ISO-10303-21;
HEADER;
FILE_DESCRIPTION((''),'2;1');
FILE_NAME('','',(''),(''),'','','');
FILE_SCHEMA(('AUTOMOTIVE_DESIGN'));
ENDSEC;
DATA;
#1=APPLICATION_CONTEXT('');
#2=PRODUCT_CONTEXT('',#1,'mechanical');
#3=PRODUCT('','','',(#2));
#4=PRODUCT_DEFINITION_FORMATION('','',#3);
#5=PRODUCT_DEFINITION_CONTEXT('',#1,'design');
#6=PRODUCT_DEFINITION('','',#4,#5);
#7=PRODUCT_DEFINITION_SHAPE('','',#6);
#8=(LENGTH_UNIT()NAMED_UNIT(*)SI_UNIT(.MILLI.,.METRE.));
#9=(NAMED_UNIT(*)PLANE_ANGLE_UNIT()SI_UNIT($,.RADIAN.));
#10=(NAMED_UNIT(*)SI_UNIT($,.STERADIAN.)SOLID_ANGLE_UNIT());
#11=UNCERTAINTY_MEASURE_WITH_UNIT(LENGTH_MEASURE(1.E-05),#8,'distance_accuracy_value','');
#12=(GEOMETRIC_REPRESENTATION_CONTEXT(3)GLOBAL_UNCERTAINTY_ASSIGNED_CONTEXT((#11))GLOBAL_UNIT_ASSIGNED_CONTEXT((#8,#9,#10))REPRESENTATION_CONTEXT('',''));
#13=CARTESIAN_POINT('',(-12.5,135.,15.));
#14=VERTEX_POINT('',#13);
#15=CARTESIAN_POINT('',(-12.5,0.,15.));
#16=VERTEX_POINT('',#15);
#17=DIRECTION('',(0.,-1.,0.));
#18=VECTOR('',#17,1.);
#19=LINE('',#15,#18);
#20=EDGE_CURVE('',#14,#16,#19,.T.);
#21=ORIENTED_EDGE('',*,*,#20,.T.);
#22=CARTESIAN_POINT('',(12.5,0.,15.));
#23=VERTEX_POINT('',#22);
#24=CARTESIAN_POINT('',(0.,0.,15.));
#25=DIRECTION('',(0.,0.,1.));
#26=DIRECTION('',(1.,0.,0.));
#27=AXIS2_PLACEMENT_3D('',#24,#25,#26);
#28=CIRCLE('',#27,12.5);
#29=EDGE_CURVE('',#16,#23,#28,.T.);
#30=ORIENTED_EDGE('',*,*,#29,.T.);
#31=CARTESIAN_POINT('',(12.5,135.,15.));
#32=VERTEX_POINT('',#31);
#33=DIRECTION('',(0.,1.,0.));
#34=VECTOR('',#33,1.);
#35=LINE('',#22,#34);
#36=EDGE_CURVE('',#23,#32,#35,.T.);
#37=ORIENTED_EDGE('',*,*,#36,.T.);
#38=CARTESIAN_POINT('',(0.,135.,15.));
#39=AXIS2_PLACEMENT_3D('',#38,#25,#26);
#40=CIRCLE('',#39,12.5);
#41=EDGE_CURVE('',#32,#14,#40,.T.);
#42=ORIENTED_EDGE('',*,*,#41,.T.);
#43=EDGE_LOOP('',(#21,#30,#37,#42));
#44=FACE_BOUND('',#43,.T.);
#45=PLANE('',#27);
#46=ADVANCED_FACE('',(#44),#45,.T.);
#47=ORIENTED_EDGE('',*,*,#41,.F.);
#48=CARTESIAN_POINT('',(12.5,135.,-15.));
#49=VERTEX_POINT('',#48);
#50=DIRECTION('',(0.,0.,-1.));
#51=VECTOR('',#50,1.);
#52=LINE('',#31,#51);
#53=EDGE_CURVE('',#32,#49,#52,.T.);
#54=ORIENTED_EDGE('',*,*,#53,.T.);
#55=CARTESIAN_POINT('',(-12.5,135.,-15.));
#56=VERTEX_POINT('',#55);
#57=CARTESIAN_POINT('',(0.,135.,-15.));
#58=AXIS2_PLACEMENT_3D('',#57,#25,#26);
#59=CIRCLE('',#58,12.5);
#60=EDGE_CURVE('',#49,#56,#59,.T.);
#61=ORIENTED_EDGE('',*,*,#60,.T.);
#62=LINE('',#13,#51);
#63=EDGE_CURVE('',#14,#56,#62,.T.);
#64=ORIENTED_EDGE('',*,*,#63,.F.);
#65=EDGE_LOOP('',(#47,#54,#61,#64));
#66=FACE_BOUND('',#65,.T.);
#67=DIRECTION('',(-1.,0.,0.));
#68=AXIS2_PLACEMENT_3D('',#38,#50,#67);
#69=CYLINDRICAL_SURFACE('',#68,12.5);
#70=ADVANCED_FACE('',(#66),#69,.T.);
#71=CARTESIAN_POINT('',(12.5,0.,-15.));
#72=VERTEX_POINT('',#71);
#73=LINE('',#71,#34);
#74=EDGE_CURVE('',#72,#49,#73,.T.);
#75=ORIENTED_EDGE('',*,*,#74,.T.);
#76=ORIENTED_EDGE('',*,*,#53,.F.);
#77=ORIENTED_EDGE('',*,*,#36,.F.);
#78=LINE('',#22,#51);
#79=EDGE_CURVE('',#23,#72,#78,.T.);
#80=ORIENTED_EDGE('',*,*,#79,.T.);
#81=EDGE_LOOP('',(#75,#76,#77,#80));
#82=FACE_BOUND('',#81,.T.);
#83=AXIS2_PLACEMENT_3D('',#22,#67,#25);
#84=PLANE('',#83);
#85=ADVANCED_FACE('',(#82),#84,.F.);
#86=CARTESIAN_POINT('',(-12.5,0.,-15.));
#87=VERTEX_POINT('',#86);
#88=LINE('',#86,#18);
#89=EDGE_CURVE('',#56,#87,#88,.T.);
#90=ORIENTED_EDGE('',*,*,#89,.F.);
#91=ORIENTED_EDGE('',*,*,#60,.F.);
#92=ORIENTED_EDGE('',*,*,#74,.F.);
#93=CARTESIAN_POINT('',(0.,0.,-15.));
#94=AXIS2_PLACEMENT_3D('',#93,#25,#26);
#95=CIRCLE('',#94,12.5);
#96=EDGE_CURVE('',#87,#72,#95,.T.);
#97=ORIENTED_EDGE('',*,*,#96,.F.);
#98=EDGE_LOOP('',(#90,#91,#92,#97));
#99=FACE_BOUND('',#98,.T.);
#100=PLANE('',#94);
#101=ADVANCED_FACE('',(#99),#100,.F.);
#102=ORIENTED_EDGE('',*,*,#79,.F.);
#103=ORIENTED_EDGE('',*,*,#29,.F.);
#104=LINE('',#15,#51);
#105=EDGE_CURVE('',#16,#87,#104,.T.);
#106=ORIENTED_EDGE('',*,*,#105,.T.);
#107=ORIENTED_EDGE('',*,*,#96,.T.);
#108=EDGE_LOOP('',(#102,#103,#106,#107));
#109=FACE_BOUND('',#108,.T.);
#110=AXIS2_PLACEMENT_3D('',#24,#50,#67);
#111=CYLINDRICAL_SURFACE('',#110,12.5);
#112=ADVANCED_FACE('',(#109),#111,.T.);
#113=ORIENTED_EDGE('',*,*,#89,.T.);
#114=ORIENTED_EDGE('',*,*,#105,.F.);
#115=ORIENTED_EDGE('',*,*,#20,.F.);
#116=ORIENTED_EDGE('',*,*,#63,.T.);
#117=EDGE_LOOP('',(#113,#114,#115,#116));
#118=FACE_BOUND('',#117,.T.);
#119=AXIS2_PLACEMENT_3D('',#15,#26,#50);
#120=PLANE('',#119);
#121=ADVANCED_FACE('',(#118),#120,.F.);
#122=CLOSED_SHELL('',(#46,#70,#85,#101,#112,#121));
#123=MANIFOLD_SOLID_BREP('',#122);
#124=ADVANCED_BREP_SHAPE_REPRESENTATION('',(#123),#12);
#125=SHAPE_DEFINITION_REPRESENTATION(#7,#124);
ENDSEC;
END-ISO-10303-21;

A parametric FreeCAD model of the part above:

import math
import FreeCAD as App
import Part
import Sketcher

V = App.Vector
Q = App.Units.Quantity

doc = App.newDocument("Part")
params = doc.addObject("Spreadsheet::Sheet", "Params")
for row, (alias, value) in enumerate([
    ("sketch1_radius", "12.5 mm"),
    ("sketch1_height", "135 mm"),
    ("pad1_length", "30 mm"),
], start=1):
    params.set(f"A{row}", alias)
    params.set(f"B{row}", "=" + value)
    params.setAlias(f"B{row}", alias)

body = doc.addObject("PartDesign::Body", "Body")

sketch1 = body.newObject("Sketcher::SketchObject", "Sketch")
sketch1.AttachmentSupport = (doc.getObject("XY_Plane"), [""])
sketch1.MapMode = "FlatFace"
sketch1.addGeometry(Part.LineSegment(V(-12.5, 135, 0), V(-12.5, 0, 0)), False)
sketch1.addGeometry(Part.ArcOfCircle(Part.Circle(V(0, 0, 0), V(0, 0, 1), 12.5), math.radians(180), math.radians(360)), False)
sketch1.addGeometry(Part.LineSegment(V(12.5, 0, 0), V(12.5, 135, 0)), False)
sketch1.addGeometry(Part.ArcOfCircle(Part.Circle(V(0, 135, 0), V(0, 0, 1), 12.5), math.radians(0), math.radians(180)), False)
sketch1.addConstraint(Sketcher.Constraint("Tangent", 0, 2, 1, 1))
sketch1.addConstraint(Sketcher.Constraint("Tangent", 1, 2, 2, 1))
sketch1.addConstraint(Sketcher.Constraint("Tangent", 2, 2, 3, 1))
sketch1.addConstraint(Sketcher.Constraint("Tangent", 3, 2, 0, 1))
sketch1.addConstraint(Sketcher.Constraint("Vertical", 0))
sketch1.addConstraint(Sketcher.Constraint("Vertical", 2))
sketch1.addConstraint(Sketcher.Constraint("Coincident", 1, 3, -1, 1))
sketch1.addConstraint(Sketcher.Constraint("Radius", 1, Q("12.5 mm")))
sketch1.addConstraint(Sketcher.Constraint("DistanceY", 0, 2, 0, 1, Q("135 mm")))
sketch1.setExpression("Constraints[7]", "Params.sketch1_radius")
sketch1.setExpression("Constraints[8]", "Params.sketch1_height")
pad1 = body.newObject("PartDesign::Pad", "Pad")
pad1.Profile = sketch1
pad1.setExpression("Length", "Params.pad1_length")
pad1.Midplane = True

doc.recompute()
